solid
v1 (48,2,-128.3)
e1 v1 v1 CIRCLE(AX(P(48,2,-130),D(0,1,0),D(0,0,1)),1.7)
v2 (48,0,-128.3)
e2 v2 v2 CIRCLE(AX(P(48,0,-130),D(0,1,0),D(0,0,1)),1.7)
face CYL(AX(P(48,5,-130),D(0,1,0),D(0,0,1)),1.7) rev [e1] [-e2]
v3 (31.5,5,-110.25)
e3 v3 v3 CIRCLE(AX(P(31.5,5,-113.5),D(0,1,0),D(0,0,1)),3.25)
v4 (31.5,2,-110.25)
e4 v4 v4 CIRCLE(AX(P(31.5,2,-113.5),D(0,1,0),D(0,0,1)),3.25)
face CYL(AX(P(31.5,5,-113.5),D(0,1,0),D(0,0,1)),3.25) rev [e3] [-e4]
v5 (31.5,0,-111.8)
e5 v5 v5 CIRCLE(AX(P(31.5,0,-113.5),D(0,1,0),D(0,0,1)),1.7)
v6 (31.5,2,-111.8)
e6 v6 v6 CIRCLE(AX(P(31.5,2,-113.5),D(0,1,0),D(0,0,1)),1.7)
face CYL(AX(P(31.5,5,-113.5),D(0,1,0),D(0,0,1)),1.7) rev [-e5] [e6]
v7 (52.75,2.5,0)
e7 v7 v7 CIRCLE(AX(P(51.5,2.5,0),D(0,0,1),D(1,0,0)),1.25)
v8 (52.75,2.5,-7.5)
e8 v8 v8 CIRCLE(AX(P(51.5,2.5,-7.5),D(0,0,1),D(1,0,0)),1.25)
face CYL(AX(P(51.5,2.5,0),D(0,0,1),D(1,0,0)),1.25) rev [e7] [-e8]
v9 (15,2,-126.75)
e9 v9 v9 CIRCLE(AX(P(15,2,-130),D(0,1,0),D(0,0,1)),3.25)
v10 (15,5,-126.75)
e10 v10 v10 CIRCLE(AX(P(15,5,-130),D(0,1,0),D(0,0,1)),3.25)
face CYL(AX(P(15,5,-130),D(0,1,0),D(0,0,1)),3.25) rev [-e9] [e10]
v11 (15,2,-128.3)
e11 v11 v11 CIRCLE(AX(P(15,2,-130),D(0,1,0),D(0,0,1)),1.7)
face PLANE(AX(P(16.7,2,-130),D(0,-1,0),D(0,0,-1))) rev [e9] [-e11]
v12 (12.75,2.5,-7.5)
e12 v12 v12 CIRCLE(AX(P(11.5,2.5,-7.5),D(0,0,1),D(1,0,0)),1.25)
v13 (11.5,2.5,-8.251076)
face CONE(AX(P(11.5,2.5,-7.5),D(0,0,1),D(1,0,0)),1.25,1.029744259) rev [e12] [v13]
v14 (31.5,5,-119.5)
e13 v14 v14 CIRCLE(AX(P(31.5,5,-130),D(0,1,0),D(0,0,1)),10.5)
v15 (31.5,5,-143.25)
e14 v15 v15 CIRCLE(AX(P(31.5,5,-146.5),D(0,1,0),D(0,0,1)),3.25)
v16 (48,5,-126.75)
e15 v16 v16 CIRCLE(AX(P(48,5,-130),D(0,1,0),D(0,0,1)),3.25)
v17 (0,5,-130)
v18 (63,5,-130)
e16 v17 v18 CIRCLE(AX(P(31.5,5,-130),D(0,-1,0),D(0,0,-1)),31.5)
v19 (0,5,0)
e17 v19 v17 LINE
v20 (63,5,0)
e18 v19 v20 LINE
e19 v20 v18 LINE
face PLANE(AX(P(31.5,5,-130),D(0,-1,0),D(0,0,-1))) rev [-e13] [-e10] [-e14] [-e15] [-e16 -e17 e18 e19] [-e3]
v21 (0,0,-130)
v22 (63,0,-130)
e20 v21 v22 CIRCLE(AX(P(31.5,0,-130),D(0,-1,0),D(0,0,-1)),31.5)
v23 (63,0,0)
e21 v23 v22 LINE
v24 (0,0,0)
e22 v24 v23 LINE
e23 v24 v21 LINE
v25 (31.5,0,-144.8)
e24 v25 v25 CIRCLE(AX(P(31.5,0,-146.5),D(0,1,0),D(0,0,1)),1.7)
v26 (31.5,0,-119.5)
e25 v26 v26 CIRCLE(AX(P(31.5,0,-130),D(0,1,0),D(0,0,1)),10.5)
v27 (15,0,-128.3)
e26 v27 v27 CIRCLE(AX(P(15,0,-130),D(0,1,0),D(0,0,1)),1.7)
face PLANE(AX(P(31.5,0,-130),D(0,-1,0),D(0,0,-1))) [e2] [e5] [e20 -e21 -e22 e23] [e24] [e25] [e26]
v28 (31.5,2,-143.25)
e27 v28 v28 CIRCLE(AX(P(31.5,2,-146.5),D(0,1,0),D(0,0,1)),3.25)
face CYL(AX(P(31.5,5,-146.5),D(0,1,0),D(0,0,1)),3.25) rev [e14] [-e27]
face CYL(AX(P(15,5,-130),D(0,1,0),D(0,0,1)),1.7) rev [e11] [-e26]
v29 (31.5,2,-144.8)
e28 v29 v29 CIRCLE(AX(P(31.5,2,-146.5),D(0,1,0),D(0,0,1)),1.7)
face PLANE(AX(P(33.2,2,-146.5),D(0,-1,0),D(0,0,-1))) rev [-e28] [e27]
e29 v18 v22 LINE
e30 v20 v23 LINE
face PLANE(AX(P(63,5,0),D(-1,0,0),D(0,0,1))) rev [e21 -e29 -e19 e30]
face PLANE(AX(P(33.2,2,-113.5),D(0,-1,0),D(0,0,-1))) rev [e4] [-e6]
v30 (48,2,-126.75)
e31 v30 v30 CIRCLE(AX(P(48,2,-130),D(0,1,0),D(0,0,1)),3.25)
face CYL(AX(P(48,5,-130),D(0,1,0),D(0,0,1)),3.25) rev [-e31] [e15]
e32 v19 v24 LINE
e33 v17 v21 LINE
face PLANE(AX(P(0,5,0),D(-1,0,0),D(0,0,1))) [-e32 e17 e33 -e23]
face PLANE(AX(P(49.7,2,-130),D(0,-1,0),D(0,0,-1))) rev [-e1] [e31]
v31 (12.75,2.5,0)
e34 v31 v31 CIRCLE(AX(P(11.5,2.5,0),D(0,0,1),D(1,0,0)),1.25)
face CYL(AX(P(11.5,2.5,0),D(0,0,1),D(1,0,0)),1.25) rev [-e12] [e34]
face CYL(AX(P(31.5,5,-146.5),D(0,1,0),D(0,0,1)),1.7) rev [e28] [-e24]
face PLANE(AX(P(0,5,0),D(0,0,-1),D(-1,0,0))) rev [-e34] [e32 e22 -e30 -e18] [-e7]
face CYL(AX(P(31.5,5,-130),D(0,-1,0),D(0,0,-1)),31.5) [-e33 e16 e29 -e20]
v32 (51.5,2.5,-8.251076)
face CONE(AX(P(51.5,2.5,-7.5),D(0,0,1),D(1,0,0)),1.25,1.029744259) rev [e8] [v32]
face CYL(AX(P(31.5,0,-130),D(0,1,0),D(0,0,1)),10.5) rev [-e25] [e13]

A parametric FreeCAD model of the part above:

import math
import FreeCAD as App
import Part
import Sketcher
from FreeCAD import Vector
Q = App.Units.Quantity

doc = App.newDocument("Part")
body = doc.addObject("PartDesign::Body", "Body")

sketch1 = body.newObject("Sketcher::SketchObject", "Sketch")
sketch1.AttachmentSupport = (doc.getObject("XZ_Plane"), [""])
sketch1.MapMode = "FlatFace"
sketch1.addGeometry(Part.LineSegment(Vector(0, 0, 0), Vector(63, 0, 0)), False)
sketch1.addGeometry(Part.LineSegment(Vector(63, 0, 0), Vector(63, -130, 0)), False)
sketch1.addGeometry(Part.ArcOfCircle(Part.Circle(Vector(31.5, -130, 0), Vector(0, 0, 1), 31.5), math.radians(180), math.radians(360)), False)
sketch1.addGeometry(Part.LineSegment(Vector(0, -130, 0), Vector(0, 0, 0)), False)
sketch1.addConstraint(Sketcher.Constraint("Coincident", 0, 2, 1, 1))
sketch1.addConstraint(Sketcher.Constraint("Tangent", 1, 2, 2, 2))
sketch1.addConstraint(Sketcher.Constraint("Tangent", 2, 1, 3, 1))
sketch1.addConstraint(Sketcher.Constraint("Coincident", 3, 2, 0, 1))
sketch1.addConstraint(Sketcher.Constraint("Horizontal", 0))
sketch1.addConstraint(Sketcher.Constraint("Vertical", 1))
sketch1.addConstraint(Sketcher.Constraint("Vertical", 3))
sketch1.addConstraint(Sketcher.Constraint("Coincident", 3, 2, -1, 1))
sketch1.addConstraint(Sketcher.Constraint("Radius", 2, Q("31.5 mm")))
sketch1.addConstraint(Sketcher.Constraint("DistanceY", 1, 2, 1, 1, Q("130 mm")))
pad1 = body.newObject("PartDesign::Pad", "Pad")
pad1.Profile = sketch1
pad1.Length = 5
pad1.Reversed = True

sketch2 = body.newObject("Sketcher::SketchObject", "Sketch001")
sketch2.AttachmentSupport = (doc.getObject("XY_Plane"), [""])
sketch2.MapMode = "FlatFace"
sketch2.addGeometry(Part.Circle(Vector(11.5, 2.5, 0), Vector(0, 0, 1), 1.25), False)
sketch2.addGeometry(Part.Circle(Vector(51.5, 2.5, 0), Vector(0, 0, 1), 1.25), False)
sketch2.addConstraint(Sketcher.Constraint("Equal", 0, 1))
sketch2.addConstraint(Sketcher.Constraint("Horizontal", 0, 3, 1, 3))
sketch2.addConstraint(Sketcher.Constraint("Diameter", 0, Q("2.5 mm")))
sketch2.addConstraint(Sketcher.Constraint("DistanceX", 0, 3, 1, 3, Q("40 mm")))
sketch2.addConstraint(Sketcher.Constraint("DistanceX", -1, 1, 0, 3, Q("11.5 mm")))
sketch2.addConstraint(Sketcher.Constraint("DistanceY", -1, 1, 0, 3, Q("2.5 mm")))
doc.recompute()
hole = body.newObject("PartDesign::Hole", "Hole")
hole.Profile = sketch2
hole.ThreadType = "None"
hole.Diameter = 2.5
hole.DepthType = "Dimension"
hole.Depth = 7.5
hole.DrillPoint = "Angled"
hole.DrillPointAngle = 118

sketch3 = body.newObject("Sketcher::SketchObject", "Sketch002")
sketch3.AttachmentSupport = (doc.getObject("XZ_Plane"), [""])
sketch3.MapMode = "FlatFace"
sketch3.AttachmentOffset = App.Placement(Vector(0, 0, -5), App.Rotation())
sketch3.addGeometry(Part.Circle(Vector(31.5, -113.5, 0), Vector(0, 0, 1), 1.7), False)
sketch3.addGeometry(Part.Circle(Vector(15, -130, 0), Vector(0, 0, 1), 1.7), False)
sketch3.addGeometry(Part.Circle(Vector(48, -130, 0), Vector(0, 0, 1), 1.7), False)
sketch3.addGeometry(Part.Circle(Vector(31.5, -146.5, 0), Vector(0, 0, 1), 1.7), False)
sketch3.addConstraint(Sketcher.Constraint("Equal", 0, 1))
sketch3.addConstraint(Sketcher.Constraint("Equal", 1, 2))
sketch3.addConstraint(Sketcher.Constraint("Equal", 2, 3))
sketch3.addConstraint(Sketcher.Constraint("Horizontal", 1, 3, 2, 3))
sketch3.addConstraint(Sketcher.Constraint("Vertical", 0, 3, 3, 3))
sketch3.addConstraint(Sketcher.Constraint("Diameter", 0, Q("3.4 mm")))
sketch3.addConstraint(Sketcher.Constraint("DistanceX", -1, 1, 1, 3, Q("15 mm")))
sketch3.addConstraint(Sketcher.Constraint("DistanceY", 1, 3, -1, 1, Q("130 mm")))
sketch3.addConstraint(Sketcher.Constraint("DistanceX", -1, 1, 2, 3, Q("48 mm")))
sketch3.addConstraint(Sketcher.Constraint("DistanceY", 3, 3, 0, 3, Q("33 mm")))
sketch3.addConstraint(Sketcher.Constraint("DistanceX", -1, 1, 0, 3, Q("31.5 mm")))
sketch3.addConstraint(Sketcher.Constraint("DistanceY", 0, 3, -1, 1, Q("113.5 mm")))
doc.recompute()
hole2 = body.newObject("PartDesign::Hole", "Hole001")
hole2.Profile = sketch3
hole2.ThreadType = "None"
hole2.Diameter = 3.4
hole2.DepthType = "ThroughAll"
hole2.HoleCutType = "Counterbore"
hole2.HoleCutDiameter = 6.5
hole2.HoleCutDepth = 3
hole2.Reversed = True

sketch4 = body.newObject("Sketcher::SketchObject", "Sketch003")
sketch4.AttachmentSupport = (doc.getObject("XZ_Plane"), [""])
sketch4.MapMode = "FlatFace"
sketch4.AttachmentOffset = App.Placement(Vector(0, 0, -5), App.Rotation())
sketch4.addGeometry(Part.Circle(Vector(31.5, -130, 0), Vector(0, 0, 1), 10.5), False)
sketch4.addConstraint(Sketcher.Constraint("Diameter", 0, Q("21 mm")))
sketch4.addConstraint(Sketcher.Constraint("DistanceY", 0, 3, -1, 1, Q("130 mm")))
sketch4.addConstraint(Sketcher.Constraint("DistanceX", -1, 1, 0, 3, Q("31.5 mm")))
pocket1 = body.newObject("PartDesign::Pocket", "Pocket")
pocket1.Profile = sketch4
pocket1.Type = "ThroughAll"
pocket1.Reversed = True

doc.recompute()
